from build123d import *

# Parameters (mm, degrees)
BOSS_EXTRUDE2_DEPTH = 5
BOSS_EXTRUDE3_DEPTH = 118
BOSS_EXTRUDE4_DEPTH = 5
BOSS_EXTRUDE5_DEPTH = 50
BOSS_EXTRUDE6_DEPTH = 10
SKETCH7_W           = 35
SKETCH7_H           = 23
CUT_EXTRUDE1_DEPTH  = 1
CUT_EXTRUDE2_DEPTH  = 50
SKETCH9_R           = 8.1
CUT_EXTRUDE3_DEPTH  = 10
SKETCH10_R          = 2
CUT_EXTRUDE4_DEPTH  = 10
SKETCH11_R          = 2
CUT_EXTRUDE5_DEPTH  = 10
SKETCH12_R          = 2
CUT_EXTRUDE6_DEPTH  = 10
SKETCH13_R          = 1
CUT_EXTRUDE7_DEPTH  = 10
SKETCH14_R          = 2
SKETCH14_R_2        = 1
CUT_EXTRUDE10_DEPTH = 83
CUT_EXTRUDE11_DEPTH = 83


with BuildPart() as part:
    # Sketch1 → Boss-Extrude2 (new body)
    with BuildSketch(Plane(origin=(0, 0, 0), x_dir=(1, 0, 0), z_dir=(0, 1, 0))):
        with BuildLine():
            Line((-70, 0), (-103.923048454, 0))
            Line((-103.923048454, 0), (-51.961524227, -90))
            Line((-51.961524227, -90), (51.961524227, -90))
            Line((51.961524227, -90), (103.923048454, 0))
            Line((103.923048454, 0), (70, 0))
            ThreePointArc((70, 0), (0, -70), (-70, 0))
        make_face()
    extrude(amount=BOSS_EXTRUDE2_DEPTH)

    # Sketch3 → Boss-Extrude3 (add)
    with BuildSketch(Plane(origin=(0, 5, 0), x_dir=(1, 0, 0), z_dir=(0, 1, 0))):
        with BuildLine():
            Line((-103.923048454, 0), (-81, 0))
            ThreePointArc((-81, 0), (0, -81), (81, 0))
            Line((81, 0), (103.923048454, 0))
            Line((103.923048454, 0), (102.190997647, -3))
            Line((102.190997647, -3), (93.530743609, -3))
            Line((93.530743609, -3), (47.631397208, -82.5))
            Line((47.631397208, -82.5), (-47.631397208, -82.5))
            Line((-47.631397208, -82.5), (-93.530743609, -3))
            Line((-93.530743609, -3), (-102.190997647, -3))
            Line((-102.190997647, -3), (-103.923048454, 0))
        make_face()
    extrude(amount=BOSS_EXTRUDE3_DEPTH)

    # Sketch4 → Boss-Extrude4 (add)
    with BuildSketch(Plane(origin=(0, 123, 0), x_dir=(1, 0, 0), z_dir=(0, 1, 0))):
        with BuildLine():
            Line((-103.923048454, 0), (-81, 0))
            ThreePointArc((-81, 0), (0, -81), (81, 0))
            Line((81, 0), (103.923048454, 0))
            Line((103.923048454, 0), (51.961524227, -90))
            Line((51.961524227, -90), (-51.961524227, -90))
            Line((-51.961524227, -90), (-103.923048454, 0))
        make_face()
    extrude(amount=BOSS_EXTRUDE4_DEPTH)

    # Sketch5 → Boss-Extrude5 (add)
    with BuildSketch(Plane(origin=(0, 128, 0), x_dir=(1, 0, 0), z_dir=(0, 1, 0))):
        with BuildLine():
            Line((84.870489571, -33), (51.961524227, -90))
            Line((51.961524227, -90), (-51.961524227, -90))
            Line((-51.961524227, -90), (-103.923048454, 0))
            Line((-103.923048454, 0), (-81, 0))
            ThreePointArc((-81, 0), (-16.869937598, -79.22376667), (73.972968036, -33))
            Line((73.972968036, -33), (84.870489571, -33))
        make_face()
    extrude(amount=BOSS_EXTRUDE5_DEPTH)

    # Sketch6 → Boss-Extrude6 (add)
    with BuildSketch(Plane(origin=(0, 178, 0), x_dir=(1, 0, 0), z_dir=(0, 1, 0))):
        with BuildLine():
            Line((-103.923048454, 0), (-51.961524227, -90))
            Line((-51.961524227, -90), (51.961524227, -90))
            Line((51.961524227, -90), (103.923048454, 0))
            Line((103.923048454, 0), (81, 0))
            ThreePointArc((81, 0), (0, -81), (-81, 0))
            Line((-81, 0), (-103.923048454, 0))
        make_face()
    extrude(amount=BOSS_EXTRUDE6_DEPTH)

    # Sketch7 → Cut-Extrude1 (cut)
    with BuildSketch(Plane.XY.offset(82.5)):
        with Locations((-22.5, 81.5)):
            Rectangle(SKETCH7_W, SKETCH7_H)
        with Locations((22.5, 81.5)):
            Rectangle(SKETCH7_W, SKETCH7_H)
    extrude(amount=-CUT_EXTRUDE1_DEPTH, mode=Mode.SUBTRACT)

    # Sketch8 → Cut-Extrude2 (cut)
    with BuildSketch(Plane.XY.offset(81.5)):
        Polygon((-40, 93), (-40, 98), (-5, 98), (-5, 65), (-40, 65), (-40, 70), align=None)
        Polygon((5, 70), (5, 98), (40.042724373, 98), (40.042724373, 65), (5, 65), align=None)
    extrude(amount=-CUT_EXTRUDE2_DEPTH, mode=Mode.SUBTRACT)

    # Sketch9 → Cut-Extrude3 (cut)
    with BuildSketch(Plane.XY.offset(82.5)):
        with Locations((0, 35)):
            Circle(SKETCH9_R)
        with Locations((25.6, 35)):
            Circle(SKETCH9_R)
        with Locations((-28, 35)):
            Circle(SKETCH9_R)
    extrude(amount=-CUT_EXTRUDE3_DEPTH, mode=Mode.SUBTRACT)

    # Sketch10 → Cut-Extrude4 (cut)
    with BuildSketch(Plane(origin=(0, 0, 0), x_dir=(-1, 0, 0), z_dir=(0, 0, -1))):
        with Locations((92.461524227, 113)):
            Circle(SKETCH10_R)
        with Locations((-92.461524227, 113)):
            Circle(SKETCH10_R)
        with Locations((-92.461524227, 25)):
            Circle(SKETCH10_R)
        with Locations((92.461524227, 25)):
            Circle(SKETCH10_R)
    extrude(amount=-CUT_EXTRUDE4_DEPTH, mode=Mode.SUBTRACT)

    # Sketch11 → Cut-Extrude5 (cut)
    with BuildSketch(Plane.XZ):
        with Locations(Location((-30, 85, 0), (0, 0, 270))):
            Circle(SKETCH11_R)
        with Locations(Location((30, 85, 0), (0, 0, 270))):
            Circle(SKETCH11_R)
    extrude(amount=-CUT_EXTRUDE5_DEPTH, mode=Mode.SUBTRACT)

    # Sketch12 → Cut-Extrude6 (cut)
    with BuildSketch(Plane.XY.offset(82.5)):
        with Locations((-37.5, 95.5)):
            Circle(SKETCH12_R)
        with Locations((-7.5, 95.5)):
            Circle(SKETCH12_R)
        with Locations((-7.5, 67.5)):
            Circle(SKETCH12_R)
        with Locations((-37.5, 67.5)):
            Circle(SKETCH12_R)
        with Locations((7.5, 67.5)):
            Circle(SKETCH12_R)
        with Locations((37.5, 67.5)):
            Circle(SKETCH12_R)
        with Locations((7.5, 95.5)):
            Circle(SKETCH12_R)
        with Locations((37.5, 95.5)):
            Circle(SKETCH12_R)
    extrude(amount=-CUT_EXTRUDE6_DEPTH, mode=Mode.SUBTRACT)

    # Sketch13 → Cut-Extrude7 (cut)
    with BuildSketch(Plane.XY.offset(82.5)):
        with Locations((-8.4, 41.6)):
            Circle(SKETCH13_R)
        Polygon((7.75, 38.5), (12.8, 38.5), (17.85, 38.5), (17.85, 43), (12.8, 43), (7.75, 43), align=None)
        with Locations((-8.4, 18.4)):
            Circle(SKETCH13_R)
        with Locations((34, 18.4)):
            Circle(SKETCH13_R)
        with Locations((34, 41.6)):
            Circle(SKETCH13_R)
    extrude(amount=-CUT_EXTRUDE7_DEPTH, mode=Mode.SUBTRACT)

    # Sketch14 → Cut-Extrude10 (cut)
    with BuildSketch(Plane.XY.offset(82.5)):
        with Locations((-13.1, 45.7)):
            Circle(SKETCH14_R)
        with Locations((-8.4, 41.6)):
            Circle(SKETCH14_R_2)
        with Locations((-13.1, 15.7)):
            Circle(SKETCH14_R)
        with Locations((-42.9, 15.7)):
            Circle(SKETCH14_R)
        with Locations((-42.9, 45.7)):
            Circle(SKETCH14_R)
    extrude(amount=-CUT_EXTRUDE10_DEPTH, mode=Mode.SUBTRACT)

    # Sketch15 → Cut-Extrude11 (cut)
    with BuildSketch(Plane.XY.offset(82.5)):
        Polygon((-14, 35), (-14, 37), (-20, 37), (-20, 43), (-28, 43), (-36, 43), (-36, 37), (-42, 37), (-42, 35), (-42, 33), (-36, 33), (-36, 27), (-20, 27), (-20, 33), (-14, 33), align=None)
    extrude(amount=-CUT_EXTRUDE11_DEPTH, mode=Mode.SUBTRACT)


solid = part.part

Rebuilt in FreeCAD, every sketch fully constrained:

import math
import FreeCAD as App
import Part
import Sketcher
from FreeCAD import Vector
Q = App.Units.Quantity

doc = App.newDocument("Part")
body = doc.addObject("PartDesign::Body", "Body")

# Sketch on XZ plane
sketch1 = body.newObject("Sketcher::SketchObject", "Sketch")
sketch1.AttachmentSupport = (doc.getObject("XZ_Plane"), [""])
sketch1.MapMode = "FlatFace"
sketch1.addGeometry([
    Part.LineSegment(Vector(-70, 0, 0), Vector(-104, 0, 0)),  # 0
    Part.LineSegment(Vector(-104, 0, 0), Vector(-52, 90, 0)),  # 1
    Part.LineSegment(Vector(-52, 90, 0), Vector(52, 90, 0)),  # 2
    Part.LineSegment(Vector(52, 90, 0), Vector(104, 0, 0)),  # 3
    Part.LineSegment(Vector(104, 0, 0), Vector(70, 0, 0)),  # 4
    Part.ArcOfCircle(Part.Circle(Vector(0, 0, 0), Vector(0, 0, 1), 70), math.radians(0), math.radians(180)),  # 5
], False)
sketch1.addConstraint([
    Sketcher.Constraint("Coincident", 0, 2, 1, 1),
    Sketcher.Constraint("Coincident", 1, 2, 2, 1),
    Sketcher.Constraint("Coincident", 2, 2, 3, 1),
    Sketcher.Constraint("Coincident", 3, 2, 4, 1),
    Sketcher.Constraint("Coincident", 4, 2, 5, 1),
    Sketcher.Constraint("Coincident", 5, 2, 0, 1),
    Sketcher.Constraint("Horizontal", 0),
    Sketcher.Constraint("Horizontal", 2),
    Sketcher.Constraint("Horizontal", 4),
    Sketcher.Constraint("Coincident", 5, 3, -1, 1),
    Sketcher.Constraint("Symmetric", 0, 2, 3, 2, -1, 1),
    Sketcher.Constraint("PointOnObject", 0, 2, -1),
    Sketcher.Constraint("Equal", 1, 3),
    Sketcher.Constraint("Radius", 5, Q("70 mm")),
    Sketcher.Constraint("Angle", 1, Q("60 deg")),
    Sketcher.Constraint("DistanceY", -1, 1, 1, 2, Q("90 mm")),
    Sketcher.Constraint("DistanceX", 0, 2, 0, 1, Q("33.923048 mm")),
])
pad1 = body.newObject("PartDesign::Pad", "Pad")
pad1.Profile = sketch1
pad1.Length = 5
pad1.Reversed = True

# Sketch on XZ plane
sketch2 = body.newObject("Sketcher::SketchObject", "Sketch001")
sketch2.AttachmentSupport = (doc.getObject("XZ_Plane"), [""])
sketch2.MapMode = "FlatFace"
sketch2.AttachmentOffset = App.Placement(Vector(0, 0, -5), App.Rotation())
sketch2.addGeometry([
    Part.LineSegment(Vector(-81, 0, 0), Vector(-103.9, 0, 0)),  # 0
    Part.LineSegment(Vector(-103.9, 0, 0), Vector(-102.2, 3, 0)),  # 1
    Part.LineSegment(Vector(-102.2, 3, 0), Vector(-93.5, 3, 0)),  # 2
    Part.LineSegment(Vector(-93.5, 3, 0), Vector(-47.6, 82.5, 0)),  # 3
    Part.LineSegment(Vector(-47.6, 82.5, 0), Vector(47.6, 82.5, 0)),  # 4
    Part.LineSegment(Vector(47.6, 82.5, 0), Vector(93.5, 3, 0)),  # 5
    Part.LineSegment(Vector(93.5, 3, 0), Vector(102.2, 3, 0)),  # 6
    Part.LineSegment(Vector(102.2, 3, 0), Vector(103.9, 0, 0)),  # 7
    Part.LineSegment(Vector(103.9, 0, 0), Vector(81, 0, 0)),  # 8
    Part.ArcOfCircle(Part.Circle(Vector(0, 0, 0), Vector(0, 0, 1), 81), math.radians(0), math.radians(180)),  # 9
], False)
sketch2.addConstraint([
    Sketcher.Constraint("Coincident", 0, 2, 1, 1),
    Sketcher.Constraint("Coincident", 1, 2, 2, 1),
    Sketcher.Constraint("Coincident", 2, 2, 3, 1),
    Sketcher.Constraint("Coincident", 3, 2, 4, 1),
    Sketcher.Constraint("Coincident", 4, 2, 5, 1),
    Sketcher.Constraint("Coincident", 5, 2, 6, 1),
    Sketcher.Constraint("Coincident", 6, 2, 7, 1),
    Sketcher.Constraint("Coincident", 7, 2, 8, 1),
    Sketcher.Constraint("Coincident", 8, 2, 9, 1),
    Sketcher.Constraint("Coincident", 9, 2, 0, 1),
    Sketcher.Constraint("Horizontal", 0),
    Sketcher.Constraint("Horizontal", 2),
    Sketcher.Constraint("Horizontal", 4),
    Sketcher.Constraint("Horizontal", 6),
    Sketcher.Constraint("Horizontal", 8),
    Sketcher.Constraint("Coincident", 9, 3, -1, 1),
    Sketcher.Constraint("Symmetric", 0, 2, 7, 2, -1, 1),
    Sketcher.Constraint("Symmetric", 2, 2, 5, 2, -2),
    Sketcher.Constraint("PointOnObject", 0, 2, -1),
    Sketcher.Constraint("Parallel", 1, 3),
    Sketcher.Constraint("Parallel", 5, 7),
    Sketcher.Constraint("Equal", 2, 6),
    Sketcher.Constraint("Radius", 9, Q("81 mm")),
    Sketcher.Constraint("Angle", 1, Q("60 deg")),
    Sketcher.Constraint("DistanceY", -1, 1, 1, 2, Q("3 mm")),
    Sketcher.Constraint("DistanceY", -1, 1, 3, 2, Q("82.5 mm")),
    Sketcher.Constraint("DistanceX", 0, 2, 0, 1, Q("22.923048 mm")),
    Sketcher.Constraint("DistanceX", 1, 2, 3, 2, Q("54.5596 mm")),
])
pad2 = body.newObject("PartDesign::Pad", "Pad001")
pad2.Profile = sketch2
pad2.Length = 118
pad2.Reversed = True

# Sketch on XZ plane
sketch3 = body.newObject("Sketcher::SketchObject", "Sketch002")
sketch3.AttachmentSupport = (doc.getObject("XZ_Plane"), [""])
sketch3.MapMode = "FlatFace"
sketch3.AttachmentOffset = App.Placement(Vector(0, 0, -123), App.Rotation())
sketch3.addGeometry([
    Part.LineSegment(Vector(-81, 0, 0), Vector(-104, 0, 0)),  # 0
    Part.LineSegment(Vector(-104, 0, 0), Vector(-52, 90, 0)),  # 1
    Part.LineSegment(Vector(-52, 90, 0), Vector(52, 90, 0)),  # 2
    Part.LineSegment(Vector(52, 90, 0), Vector(104, 0, 0)),  # 3
    Part.LineSegment(Vector(104, 0, 0), Vector(81, 0, 0)),  # 4
    Part.ArcOfCircle(Part.Circle(Vector(0, 0, 0), Vector(0, 0, 1), 81), math.radians(0), math.radians(180)),  # 5
], False)
sketch3.addConstraint([
    Sketcher.Constraint("Coincident", 0, 2, 1, 1),
    Sketcher.Constraint("Coincident", 1, 2, 2, 1),
    Sketcher.Constraint("Coincident", 2, 2, 3, 1),
    Sketcher.Constraint("Coincident", 3, 2, 4, 1),
    Sketcher.Constraint("Coincident", 4, 2, 5, 1),
    Sketcher.Constraint("Coincident", 5, 2, 0, 1),
    Sketcher.Constraint("Horizontal", 0),
    Sketcher.Constraint("Horizontal", 2),
    Sketcher.Constraint("Horizontal", 4),
    Sketcher.Constraint("Coincident", 5, 3, -1, 1),
    Sketcher.Constraint("Symmetric", 0, 2, 3, 2, -1, 1),
    Sketcher.Constraint("PointOnObject", 0, 2, -1),
    Sketcher.Constraint("Equal", 1, 3),
    Sketcher.Constraint("Radius", 5, Q("81 mm")),
    Sketcher.Constraint("Angle", 1, Q("60 deg")),
    Sketcher.Constraint("DistanceY", -1, 1, 1, 2, Q("90 mm")),
    Sketcher.Constraint("DistanceX", 0, 2, 0, 1, Q("22.923048 mm")),
])
pad3 = body.newObject("PartDesign::Pad", "Pad002")
pad3.Profile = sketch3
pad3.Length = 5
pad3.Reversed = True

# Sketch on XZ plane
sketch4 = body.newObject("Sketcher::SketchObject", "Sketch003")
sketch4.AttachmentSupport = (doc.getObject("XZ_Plane"), [""])
sketch4.MapMode = "FlatFace"
sketch4.AttachmentOffset = App.Placement(Vector(0, 0, -128), App.Rotation())
sketch4.addGeometry([
    Part.LineSegment(Vector(52, 90, 0), Vector(85, 33, 0)),  # 0
    Part.LineSegment(Vector(85, 33, 0), Vector(74, 33, 0)),  # 1
    Part.ArcOfCircle(Part.Circle(Vector(0, 0, 0), Vector(0, 0, 1), 81), math.radians(24), math.radians(180)),  # 2
    Part.LineSegment(Vector(-81, 0, 0), Vector(-104, 0, 0)),  # 3
    Part.LineSegment(Vector(-104, 0, 0), Vector(-52, 90, 0)),  # 4
    Part.LineSegment(Vector(-52, 90, 0), Vector(52, 90, 0)),  # 5
], False)
sketch4.addConstraint([
    Sketcher.Constraint("Coincident", 0, 2, 1, 1),
    Sketcher.Constraint("Coincident", 1, 2, 2, 1),
    Sketcher.Constraint("Coincident", 2, 2, 3, 1),
    Sketcher.Constraint("Coincident", 3, 2, 4, 1),
    Sketcher.Constraint("Coincident", 4, 2, 5, 1),
    Sketcher.Constraint("Coincident", 5, 2, 0, 1),
    Sketcher.Constraint("Horizontal", 1),
    Sketcher.Constraint("Horizontal", 3),
    Sketcher.Constraint("Horizontal", 5),
    Sketcher.Constraint("Coincident", 2, 3, -1, 1),
    Sketcher.Constraint("PointOnObject", 2, 2, -1),
    Sketcher.Constraint("Radius", 2, Q("81 mm")),
    Sketcher.Constraint("Angle", 0, Q("-60 deg")),
    Sketcher.Constraint("Angle", 4, Q("60 deg")),
    Sketcher.Constraint("DistanceY", -1, 1, 0, 2, Q("33 mm")),
    Sketcher.Constraint("DistanceY", -1, 1, 4, 2, Q("90 mm")),
    Sketcher.Constraint("DistanceX", 1, 2, 1, 1, Q("10.897522 mm")),
    Sketcher.Constraint("DistanceX", 3, 2, 3, 1, Q("22.923048 mm")),
])
pad4 = body.newObject("PartDesign::Pad", "Pad003")
pad4.Profile = sketch4
pad4.Length = 50
pad4.Reversed = True

# Sketch on XZ plane
sketch5 = body.newObject("Sketcher::SketchObject", "Sketch004")
sketch5.AttachmentSupport = (doc.getObject("XZ_Plane"), [""])
sketch5.MapMode = "FlatFace"
sketch5.AttachmentOffset = App.Placement(Vector(0, 0, -178), App.Rotation())
sketch5.addGeometry([
    Part.LineSegment(Vector(-104, 0, 0), Vector(-52, 90, 0)),  # 0
    Part.LineSegment(Vector(-52, 90, 0), Vector(52, 90, 0)),  # 1
    Part.LineSegment(Vector(52, 90, 0), Vector(104, 0, 0)),  # 2
    Part.LineSegment(Vector(104, 0, 0), Vector(81, 0, 0)),  # 3
    Part.ArcOfCircle(Part.Circle(Vector(0, 0, 0), Vector(0, 0, 1), 81), math.radians(0), math.radians(180)),  # 4
    Part.LineSegment(Vector(-81, 0, 0), Vector(-104, 0, 0)),  # 5
], False)
sketch5.addConstraint([
    Sketcher.Constraint("Coincident", 0, 2, 1, 1),
    Sketcher.Constraint("Coincident", 1, 2, 2, 1),
    Sketcher.Constraint("Coincident", 2, 2, 3, 1),
    Sketcher.Constraint("Coincident", 3, 2, 4, 1),
    Sketcher.Constraint("Coincident", 4, 2, 5, 1),
    Sketcher.Constraint("Coincident", 5, 2, 0, 1),
    Sketcher.Constraint("Horizontal", 1),
    Sketcher.Constraint("Horizontal", 3),
    Sketcher.Constraint("Horizontal", 5),
    Sketcher.Constraint("Coincident", 4, 3, -1, 1),
    Sketcher.Constraint("Symmetric", 2, 2, 5, 2, -1, 1),
    Sketcher.Constraint("PointOnObject", 2, 2, -1),
    Sketcher.Constraint("Equal", 0, 2),
    Sketcher.Constraint("Radius", 4, Q("81 mm")),
    Sketcher.Constraint("Angle", 0, Q("60 deg")),
    Sketcher.Constraint("DistanceY", -1, 1, 0, 2, Q("90 mm")),
    Sketcher.Constraint("DistanceX", 1, 1, 1, 2, Q("103.923048 mm")),
])
pad5 = body.newObject("PartDesign::Pad", "Pad004")
pad5.Profile = sketch5
pad5.Length = 10
pad5.Reversed = True

# Sketch on XY plane
sketch6 = body.newObject("Sketcher::SketchObject", "Sketch005")
sketch6.AttachmentSupport = (doc.getObject("XY_Plane"), [""])
sketch6.MapMode = "FlatFace"
sketch6.AttachmentOffset = App.Placement(Vector(0, 0, 82.5), App.Rotation())
sketch6.addGeometry([
    Part.LineSegment(Vector(-40, 93, 0), Vector(-40, 70, 0)),  # 0
    Part.LineSegment(Vector(-40, 70, 0), Vector(-5, 70, 0)),  # 1
    Part.LineSegment(Vector(-5, 70, 0), Vector(-5, 93, 0)),  # 2
    Part.LineSegment(Vector(-5, 93, 0), Vector(-40, 93, 0)),  # 3
    Part.LineSegment(Vector(5, 93, 0), Vector(5, 70, 0)),  # 4
    Part.LineSegment(Vector(5, 70, 0), Vector(40, 70, 0)),  # 5
    Part.LineSegment(Vector(40, 70, 0), Vector(40, 93, 0)),  # 6
    Part.LineSegment(Vector(40, 93, 0), Vector(5, 93, 0)),  # 7
], False)
sketch6.addConstraint([
    Sketcher.Constraint("Coincident", 0, 2, 1, 1),
    Sketcher.Constraint("Coincident", 1, 2, 2, 1),
    Sketcher.Constraint("Coincident", 2, 2, 3, 1),
    Sketcher.Constraint("Coincident", 3, 2, 0, 1),
    Sketcher.Constraint("Coincident", 4, 2, 5, 1),
    Sketcher.Constraint("Coincident", 5, 2, 6, 1),
    Sketcher.Constraint("Coincident", 6, 2, 7, 1),
    Sketcher.Constraint("Coincident", 7, 2, 4, 1),
    Sketcher.Constraint("Vertical", 0),
    Sketcher.Constraint("Horizontal", 1),
    Sketcher.Constraint("Vertical", 2),
    Sketcher.Constraint("Horizontal", 3),
    Sketcher.Constraint("Vertical", 4),
    Sketcher.Constraint("Horizontal", 5),
    Sketcher.Constraint("Vertical", 6),
    Sketcher.Constraint("Horizontal", 7),
    Sketcher.Constraint("Symmetric", 1, 2, 4, 2, -2),
    Sketcher.Constraint("Symmetric", 3, 2, 6, 2, -2),
    Sketcher.Constraint("DistanceX", 1, 1, 1, 2, Q("35 mm")),
    Sketcher.Constraint("DistanceY", 0, 2, 0, 1, Q("23 mm")),
    Sketcher.Constraint("DistanceX", 0, 2, -1, 1, Q("40 mm")),
    Sketcher.Constraint("DistanceY", -1, 1, 0, 2, Q("70 mm")),
])
pocket1 = body.newObject("PartDesign::Pocket", "Pocket")
pocket1.Profile = sketch6
pocket1.Length = 1

# Sketch on XY plane
sketch7 = body.newObject("Sketcher::SketchObject", "Sketch006")
sketch7.AttachmentSupport = (doc.getObject("XY_Plane"), [""])
sketch7.MapMode = "FlatFace"
sketch7.AttachmentOffset = App.Placement(Vector(0, 0, 81.5), App.Rotation())
sketch7.addGeometry([
    Part.LineSegment(Vector(-40, 98, 0), Vector(-40, 65, 0)),  # 0
    Part.LineSegment(Vector(-40, 65, 0), Vector(-5, 65, 0)),  # 1
    Part.LineSegment(Vector(-5, 65, 0), Vector(-5, 98, 0)),  # 2
    Part.LineSegment(Vector(-5, 98, 0), Vector(-40, 98, 0)),  # 3
    Part.LineSegment(Vector(5, 98, 0), Vector(5, 65, 0)),  # 4
    Part.LineSegment(Vector(5, 65, 0), Vector(40, 65, 0)),  # 5
    Part.LineSegment(Vector(40, 65, 0), Vector(40, 98, 0)),  # 6
    Part.LineSegment(Vector(40, 98, 0), Vector(5, 98, 0)),  # 7
], False)
sketch7.addConstraint([
    Sketcher.Constraint("Coincident", 0, 2, 1, 1),
    Sketcher.Constraint("Coincident", 1, 2, 2, 1),
    Sketcher.Constraint("Coincident", 2, 2, 3, 1),
    Sketcher.Constraint("Coincident", 3, 2, 0, 1),
    Sketcher.Constraint("Coincident", 4, 2, 5, 1),
    Sketcher.Constraint("Coincident", 5, 2, 6, 1),
    Sketcher.Constraint("Coincident", 6, 2, 7, 1),
    Sketcher.Constraint("Coincident", 7, 2, 4, 1),
    Sketcher.Constraint("Vertical", 0),
    Sketcher.Constraint("Horizontal", 1),
    Sketcher.Constraint("Vertical", 2),
    Sketcher.Constraint("Horizontal", 3),
    Sketcher.Constraint("Vertical", 4),
    Sketcher.Constraint("Horizontal", 5),
    Sketcher.Constraint("Vertical", 6),
    Sketcher.Constraint("Horizontal", 7),
    Sketcher.Constraint("Symmetric", 1, 2, 4, 2, -2),
    Sketcher.Constraint("Horizontal", 3, 2, 6, 2),
    Sketcher.Constraint("DistanceX", 1, 1, 1, 2, Q("35 mm")),
    Sketcher.Constraint("DistanceY", 0, 2, 0, 1, Q("33 mm")),
    Sketcher.Constraint("DistanceX", 0, 2, -1, 1, Q("40 mm")),
    Sketcher.Constraint("DistanceY", -1, 1, 0, 2, Q("65 mm")),
    Sketcher.Constraint("DistanceX", 5, 1, 5, 2, Q("35.042724 mm")),
])
pocket2 = body.newObject("PartDesign::Pocket", "Pocket001")
pocket2.Profile = sketch7
pocket2.Length = 50

# Sketch on XY plane
sketch8 = body.newObject("Sketcher::SketchObject", "Sketch007")
sketch8.AttachmentSupport = (doc.getObject("XY_Plane"), [""])
sketch8.MapMode = "FlatFace"
sketch8.AttachmentOffset = App.Placement(Vector(0, 0, 82.5), App.Rotation())
sketch8.addGeometry([
    Part.Circle(Vector(0, 35, 0), Vector(0, 0, 1), 8),
    Part.Circle(Vector(26, 35, 0), Vector(0, 0, 1), 8),
    Part.Circle(Vector(-28, 35, 0), Vector(0, 0, 1), 8),
], False)
sketch8.addConstraint([
    Sketcher.Constraint("Equal", 0, 1),
    Sketcher.Constraint("Equal", 1, 2),
    Sketcher.Constraint("PointOnObject", 0, 3, -2),
    Sketcher.Constraint("Horizontal", 0, 3, 1, 3),
    Sketcher.Constraint("Horizontal", 1, 3, 2, 3),
    Sketcher.Constraint("Diameter", 0, Q("16.2 mm")),
    Sketcher.Constraint("DistanceY", -1, 1, 0, 3, Q("35 mm")),
    Sketcher.Constraint("DistanceX", 2, 3, -1, 1, Q("28 mm")),
    Sketcher.Constraint("DistanceX", -1, 1, 1, 3, Q("25.6 mm")),
])
pocket3 = body.newObject("PartDesign::Pocket", "Pocket002")
pocket3.Profile = sketch8
pocket3.Length = 10

# Sketch on XY plane
sketch9 = body.newObject("Sketcher::SketchObject", "Sketch008")
sketch9.AttachmentSupport = (doc.getObject("XY_Plane"), [""])
sketch9.MapMode = "FlatFace"
sketch9.addGeometry([
    Part.Circle(Vector(-92.5, 113, 0), Vector(0, 0, 1), 2),
    Part.Circle(Vector(92.5, 113, 0), Vector(0, 0, 1), 2),
    Part.Circle(Vector(92.5, 25, 0), Vector(0, 0, 1), 2),
    Part.Circle(Vector(-92.5, 25, 0), Vector(0, 0, 1), 2),
], False)
sketch9.addConstraint([
    Sketcher.Constraint("Equal", 0, 1),
    Sketcher.Constraint("Equal", 1, 2),
    Sketcher.Constraint("Equal", 2, 3),
    Sketcher.Constraint("Symmetric", 0, 3, 1, 3, -2),
    Sketcher.Constraint("Symmetric", 2, 3, 3, 3, -2),
    Sketcher.Constraint("Vertical", 1, 3, 2, 3),
    Sketcher.Constraint("Diameter", 0, Q("4 mm")),
    Sketcher.Constraint("DistanceY", -1, 1, 0, 3, Q("113 mm")),
    Sketcher.Constraint("DistanceY", -1, 1, 2, 3, Q("25 mm")),
    Sketcher.Constraint("DistanceX", 0, 3, 1, 3, Q("184.923048 mm")),
])
pocket4 = body.newObject("PartDesign::Pocket", "Pocket003")
pocket4.Profile = sketch9
pocket4.Length = 10
pocket4.Reversed = True

# Sketch on XZ plane
sketch10 = body.newObject("Sketcher::SketchObject", "Sketch009")
sketch10.AttachmentSupport = (doc.getObject("XZ_Plane"), [""])
sketch10.MapMode = "FlatFace"
sketch10.addGeometry([
    Part.Circle(Vector(-30, 85, 0), Vector(0, 0, 1), 2),
    Part.Circle(Vector(30, 85, 0), Vector(0, 0, 1), 2),
], False)
sketch10.addConstraint([
    Sketcher.Constraint("Equal", 0, 1),
    Sketcher.Constraint("Symmetric", 0, 3, 1, 3, -2),
    Sketcher.Constraint("Diameter", 0, Q("4 mm")),
    Sketcher.Constraint("DistanceX", 0, 3, -1, 1, Q("30 mm")),
    Sketcher.Constraint("DistanceY", -1, 1, 0, 3, Q("85 mm")),
])
pocket5 = body.newObject("PartDesign::Pocket", "Pocket004")
pocket5.Profile = sketch10
pocket5.Length = 10

# Sketch on XY plane
sketch11 = body.newObject("Sketcher::SketchObject", "Sketch010")
sketch11.AttachmentSupport = (doc.getObject("XY_Plane"), [""])
sketch11.MapMode = "FlatFace"
sketch11.AttachmentOffset = App.Placement(Vector(0, 0, 82.5), App.Rotation())
sketch11.addGeometry([
    Part.Circle(Vector(-37.5, 95.5, 0), Vector(0, 0, 1), 2),  # 0
    Part.Circle(Vector(-7.5, 95.5, 0), Vector(0, 0, 1), 2),  # 1
    Part.Circle(Vector(-7.5, 67.5, 0), Vector(0, 0, 1), 2),  # 2
    Part.Circle(Vector(-37.5, 67.5, 0), Vector(0, 0, 1), 2),  # 3
    Part.Circle(Vector(7.5, 67.5, 0), Vector(0, 0, 1), 2),  # 4
    Part.Circle(Vector(37.5, 67.5, 0), Vector(0, 0, 1), 2),  # 5
    Part.Circle(Vector(7.5, 95.5, 0), Vector(0, 0, 1), 2),  # 6
    Part.Circle(Vector(37.5, 95.5, 0), Vector(0, 0, 1), 2),  # 7
], False)
sketch11.addConstraint([
    Sketcher.Constraint("Equal", 0, 1),
    Sketcher.Constraint("Equal", 1, 2),
    Sketcher.Constraint("Equal", 2, 3),
    Sketcher.Constraint("Equal", 3, 4),
    Sketcher.Constraint("Equal", 4, 5),
    Sketcher.Constraint("Equal", 5, 6),
    Sketcher.Constraint("Equal", 6, 7),
    Sketcher.Constraint("Symmetric", 2, 3, 4, 3, -2),
    Sketcher.Constraint("Symmetric", 3, 3, 5, 3, -2),
    Sketcher.Constraint("Symmetric", 1, 3, 6, 3, -2),
    Sketcher.Constraint("Symmetric", 0, 3, 7, 3, -2),
    Sketcher.Constraint("Horizontal", 0, 3, 1, 3),
    Sketcher.Constraint("Horizontal", 2, 3, 3, 3),
    Sketcher.Constraint("Vertical", 1, 3, 2, 3),
    Sketcher.Constraint("Vertical", 0, 3, 3, 3),
    Sketcher.Constraint("Diameter", 0, Q("4 mm")),
    Sketcher.Constraint("DistanceX", 0, 3, 1, 3, Q("30 mm")),
    Sketcher.Constraint("DistanceY", 2, 3, 1, 3, Q("28 mm")),
    Sketcher.Constraint("DistanceX", 2, 3, 4, 3, Q("15 mm")),
    Sketcher.Constraint("DistanceY", -1, 1, 0, 3, Q("95.5 mm")),
])
pocket6 = body.newObject("PartDesign::Pocket", "Pocket005")
pocket6.Profile = sketch11
pocket6.Length = 10

# Sketch on XY plane
sketch12 = body.newObject("Sketcher::SketchObject", "Sketch011")
sketch12.AttachmentSupport = (doc.getObject("XY_Plane"), [""])
sketch12.MapMode = "FlatFace"
sketch12.AttachmentOffset = App.Placement(Vector(0, 0, 82.5), App.Rotation())
sketch12.addGeometry([
    Part.Circle(Vector(-8.4, 41.6, 0), Vector(0, 0, 1), 1),  # 0
    Part.LineSegment(Vector(7.8, 38.5, 0), Vector(17.9, 38.5, 0)),  # 1
    Part.LineSegment(Vector(17.9, 38.5, 0), Vector(17.9, 43, 0)),  # 2
    Part.LineSegment(Vector(17.9, 43, 0), Vector(7.8, 43, 0)),  # 3
    Part.LineSegment(Vector(7.8, 43, 0), Vector(7.8, 38.5, 0)),  # 4
    Part.Circle(Vector(-8.4, 18.4, 0), Vector(0, 0, 1), 1),  # 5
    Part.Circle(Vector(34, 18.4, 0), Vector(0, 0, 1), 1),  # 6
    Part.Circle(Vector(34, 41.6, 0), Vector(0, 0, 1), 1),  # 7
], False)
sketch12.addConstraint([
    Sketcher.Constraint("Coincident", 1, 2, 2, 1),
    Sketcher.Constraint("Coincident", 2, 2, 3, 1),
    Sketcher.Constraint("Coincident", 3, 2, 4, 1),
    Sketcher.Constraint("Coincident", 4, 2, 1, 1),
    Sketcher.Constraint("Horizontal", 1),
    Sketcher.Constraint("Vertical", 2),
    Sketcher.Constraint("Horizontal", 3),
    Sketcher.Constraint("Vertical", 4),
    Sketcher.Constraint("Equal", 0, 5),
    Sketcher.Constraint("Equal", 5, 6),
    Sketcher.Constraint("Equal", 6, 7),
    Sketcher.Constraint("Horizontal", 5, 3, 6, 3),
    Sketcher.Constraint("Horizontal", 0, 3, 7, 3),
    Sketcher.Constraint("Vertical", 0, 3, 5, 3),
    Sketcher.Constraint("Vertical", 6, 3, 7, 3),
    Sketcher.Constraint("Diameter", 0, Q("2 mm")),
    Sketcher.Constraint("DistanceX", 1, 1, 1, 2, Q("10.1 mm")),
    Sketcher.Constraint("DistanceY", 2, 1, 2, 2, Q("4.5 mm")),
    Sketcher.Constraint("DistanceX", -1, 1, 6, 3, Q("34 mm")),
    Sketcher.Constraint("DistanceY", -1, 1, 2, 2, Q("43 mm")),
    Sketcher.Constraint("DistanceX", 0, 3, -1, 1, Q("8.4 mm")),
    Sketcher.Constraint("DistanceY", -1, 1, 0, 3, Q("41.6 mm")),
    Sketcher.Constraint("DistanceY", -1, 1, 5, 3, Q("18.4 mm")),
    Sketcher.Constraint("DistanceX", -1, 1, 1, 2, Q("17.85 mm")),
])
pocket7 = body.newObject("PartDesign::Pocket", "Pocket006")
pocket7.Profile = sketch12
pocket7.Length = 10

# Sketch on XY plane
sketch13 = body.newObject("Sketcher::SketchObject", "Sketch012")
sketch13.AttachmentSupport = (doc.getObject("XY_Plane"), [""])
sketch13.MapMode = "FlatFace"
sketch13.AttachmentOffset = App.Placement(Vector(0, 0, 82.5), App.Rotation())
sketch13.addGeometry([
    Part.Circle(Vector(-13.1, 45.7, 0), Vector(0, 0, 1), 2),  # 0
    Part.Circle(Vector(-8.4, 41.6, 0), Vector(0, 0, 1), 1),  # 1
    Part.Circle(Vector(-13.1, 15.7, 0), Vector(0, 0, 1), 2),  # 2
    Part.Circle(Vector(-42.9, 15.7, 0), Vector(0, 0, 1), 2),  # 3
    Part.Circle(Vector(-42.9, 45.7, 0), Vector(0, 0, 1), 2),  # 4
], False)
sketch13.addConstraint([
    Sketcher.Constraint("Equal", 0, 2),
    Sketcher.Constraint("Equal", 2, 3),
    Sketcher.Constraint("Equal", 3, 4),
    Sketcher.Constraint("Horizontal", 2, 3, 3, 3),
    Sketcher.Constraint("Horizontal", 0, 3, 4, 3),
    Sketcher.Constraint("Vertical", 0, 3, 2, 3),
    Sketcher.Constraint("Vertical", 3, 3, 4, 3),
    Sketcher.Constraint("Diameter", 0, Q("4 mm")),
    Sketcher.Constraint("Diameter", 1, Q("2 mm")),
    Sketcher.Constraint("DistanceY", 2, 3, 0, 3, Q("30 mm")),
    Sketcher.Constraint("DistanceX", 0, 3, -1, 1, Q("13.1 mm")),
    Sketcher.Constraint("DistanceY", -1, 1, 0, 3, Q("45.7 mm")),
    Sketcher.Constraint("DistanceX", 1, 3, -1, 1, Q("8.4 mm")),
    Sketcher.Constraint("DistanceY", -1, 1, 1, 3, Q("41.6 mm")),
    Sketcher.Constraint("DistanceX", 3, 3, -1, 1, Q("42.9 mm")),
])
pocket8 = body.newObject("PartDesign::Pocket", "Pocket007")
pocket8.Profile = sketch13
pocket8.Length = 83

# Sketch on XY plane
sketch14 = body.newObject("Sketcher::SketchObject", "Sketch013")
sketch14.AttachmentSupport = (doc.getObject("XY_Plane"), [""])
sketch14.MapMode = "FlatFace"
sketch14.AttachmentOffset = App.Placement(Vector(0, 0, 82.5), App.Rotation())
sketch14.addGeometry([
    Part.LineSegment(Vector(-14, 37, 0), Vector(-20, 37, 0)),  # 0
    Part.LineSegment(Vector(-20, 37, 0), Vector(-20, 43, 0)),  # 1
    Part.LineSegment(Vector(-20, 43, 0), Vector(-36, 43, 0)),  # 2
    Part.LineSegment(Vector(-36, 43, 0), Vector(-36, 37, 0)),  # 3
    Part.LineSegment(Vector(-36, 37, 0), Vector(-42, 37, 0)),  # 4
    Part.LineSegment(Vector(-42, 37, 0), Vector(-42, 33, 0)),  # 5
    Part.LineSegment(Vector(-42, 33, 0), Vector(-36, 33, 0)),  # 6
    Part.LineSegment(Vector(-36, 33, 0), Vector(-36, 27, 0)),  # 7
    Part.LineSegment(Vector(-36, 27, 0), Vector(-20, 27, 0)),  # 8
    Part.LineSegment(Vector(-20, 27, 0), Vector(-20, 33, 0)),  # 9
    Part.LineSegment(Vector(-20, 33, 0), Vector(-14, 33, 0)),  # 10
    Part.LineSegment(Vector(-14, 33, 0), Vector(-14, 37, 0)),  # 11
], False)
sketch14.addConstraint([
    Sketcher.Constraint("Coincident", 0, 2, 1, 1),
    Sketcher.Constraint("Coincident", 1, 2, 2, 1),
    Sketcher.Constraint("Coincident", 2, 2, 3, 1),
    Sketcher.Constraint("Coincident", 3, 2, 4, 1),
    Sketcher.Constraint("Coincident", 4, 2, 5, 1),
    Sketcher.Constraint("Coincident", 5, 2, 6, 1),
    Sketcher.Constraint("Coincident", 6, 2, 7, 1),
    Sketcher.Constraint("Coincident", 7, 2, 8, 1),
    Sketcher.Constraint("Coincident", 8, 2, 9, 1),
    Sketcher.Constraint("Coincident", 9, 2, 10, 1),
    Sketcher.Constraint("Coincident", 10, 2, 11, 1),
    Sketcher.Constraint("Coincident", 11, 2, 0, 1),
    Sketcher.Constraint("Horizontal", 0),
    Sketcher.Constraint("Vertical", 1),
    Sketcher.Constraint("Horizontal", 2),
    Sketcher.Constraint("Vertical", 3),
    Sketcher.Constraint("Horizontal", 4),
    Sketcher.Constraint("Vertical", 5),
    Sketcher.Constraint("Horizontal", 6),
    Sketcher.Constraint("Vertical", 7),
    Sketcher.Constraint("Horizontal", 8),
    Sketcher.Constraint("Vertical", 9),
    Sketcher.Constraint("Horizontal", 10),
    Sketcher.Constraint("Vertical", 11),
    Sketcher.Constraint("Horizontal", 0, 2, 3, 2),
    Sketcher.Constraint("Horizontal", 6, 2, 9, 2),
    Sketcher.Constraint("Vertical", 3, 2, 6, 2),
    Sketcher.Constraint("Vertical", 1, 2, 8, 2),
    Sketcher.Constraint("Equal", 0, 4),
    Sketcher.Constraint("Equal", 10, 1),
    Sketcher.Constraint("Equal", 3, 7),
    Sketcher.Constraint("DistanceX", 0, 2, 0, 1, Q("6 mm")),
    Sketcher.Constraint("DistanceX", 2, 2, 2, 1, Q("16 mm")),
    Sketcher.Constraint("DistanceY", 5, 2, 5, 1, Q("4 mm")),
    Sketcher.Constraint("DistanceX", 0, 2, -1, 1, Q("20 mm")),
    Sketcher.Constraint("DistanceY", -1, 1, 0, 2, Q("37 mm")),
])
pocket9 = body.newObject("PartDesign::Pocket", "Pocket008")
pocket9.Profile = sketch14
pocket9.Length = 83

doc.recompute()
